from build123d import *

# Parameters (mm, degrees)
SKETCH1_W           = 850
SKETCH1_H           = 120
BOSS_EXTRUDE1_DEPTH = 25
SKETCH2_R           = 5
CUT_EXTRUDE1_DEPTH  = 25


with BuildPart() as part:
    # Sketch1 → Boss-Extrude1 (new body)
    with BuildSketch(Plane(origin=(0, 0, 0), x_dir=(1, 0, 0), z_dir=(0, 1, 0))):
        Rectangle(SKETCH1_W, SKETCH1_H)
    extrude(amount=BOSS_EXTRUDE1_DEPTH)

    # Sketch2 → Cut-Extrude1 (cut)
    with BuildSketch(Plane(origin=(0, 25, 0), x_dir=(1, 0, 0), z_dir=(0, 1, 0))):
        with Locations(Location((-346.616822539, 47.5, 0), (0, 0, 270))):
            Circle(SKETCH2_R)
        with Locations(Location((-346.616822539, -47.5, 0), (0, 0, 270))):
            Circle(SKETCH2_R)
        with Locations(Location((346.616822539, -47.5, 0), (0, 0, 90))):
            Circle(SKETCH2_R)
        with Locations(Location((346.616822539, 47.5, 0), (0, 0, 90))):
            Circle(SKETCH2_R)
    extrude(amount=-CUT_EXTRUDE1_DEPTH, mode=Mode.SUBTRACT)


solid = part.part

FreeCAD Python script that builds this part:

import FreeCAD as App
import Part
import Sketcher
from FreeCAD import Vector
Q = App.Units.Quantity


def add_polygon(sketch, points):
    """Adds a closed chain of lines whose ends are joined by coincident constraints."""
    first, n = sketch.GeometryCount, len(points)
    for a, b in zip(points, points[1:] + points[:1]):
        sketch.addGeometry(Part.LineSegment(App.Vector(*a, 0), App.Vector(*b, 0)), False)
    for i in range(n):
        sketch.addConstraint(Sketcher.Constraint("Coincident", first + i, 2, first + (i + 1) % n, 1))

doc = App.newDocument("Part")
body = doc.addObject("PartDesign::Body", "Body")

# Sketch on XZ plane
sketch1 = doc.addObject("Sketcher::SketchObject", "Sketch")
body.addObject(sketch1)
sketch1.AttachmentSupport = (doc.XZ_Plane, [""])
sketch1.MapMode = "FlatFace"
add_polygon(sketch1, [(-425, -60), (-425, 60), (425, 60), (425, -60)])  # lines 0-3
sketch1.addConstraint(Sketcher.Constraint("Vertical", 0))
sketch1.addConstraint(Sketcher.Constraint("Horizontal", 1))
sketch1.addConstraint(Sketcher.Constraint("Vertical", 2))
sketch1.addConstraint(Sketcher.Constraint("Horizontal", 3))
sketch1.addConstraint(Sketcher.Constraint("Symmetric", 0, 2, 2, 2, -1, 1))
sketch1.addConstraint(Sketcher.Constraint("DistanceX", 1, 1, 1, 2, Q("850 mm")))
sketch1.addConstraint(Sketcher.Constraint("DistanceY", 0, 1, 0, 2, Q("120 mm")))
pad1 = doc.addObject("PartDesign::Pad", "Pad")
body.addObject(pad1)
pad1.Profile = sketch1
pad1.Length = 25
pad1.Reversed = True

# Sketch on XZ plane
sketch2 = doc.addObject("Sketcher::SketchObject", "Sketch001")
body.addObject(sketch2)
sketch2.AttachmentSupport = (doc.XZ_Plane, [""])
sketch2.MapMode = "FlatFace"
sketch2.AttachmentOffset = App.Placement(Vector(0, 0, -25), App.Rotation())
sketch2.addGeometry(Part.Circle(Vector(-347, -48, 0), Vector(0, 0, 1), 5), False)
sketch2.addGeometry(Part.Circle(Vector(-347, 48, 0), Vector(0, 0, 1), 5), False)
sketch2.addGeometry(Part.Circle(Vector(347, 48, 0), Vector(0, 0, 1), 5), False)
sketch2.addGeometry(Part.Circle(Vector(347, -48, 0), Vector(0, 0, 1), 5), False)
sketch2.addConstraint(Sketcher.Constraint("Equal", 0, 1))
sketch2.addConstraint(Sketcher.Constraint("Equal", 1, 2))
sketch2.addConstraint(Sketcher.Constraint("Equal", 2, 3))
sketch2.addConstraint(Sketcher.Constraint("Symmetric", 0, 3, 2, 3, -1, 1))
sketch2.addConstraint(Sketcher.Constraint("Symmetric", 1, 3, 3, 3, -1, 1))
sketch2.addConstraint(Sketcher.Constraint("Symmetric", 1, 3, 2, 3, -2))
sketch2.addConstraint(Sketcher.Constraint("Diameter", 0, Q("10 mm")))
sketch2.addConstraint(Sketcher.Constraint("DistanceY", 0, 3, 1, 3, Q("95 mm")))
sketch2.addConstraint(Sketcher.Constraint("DistanceX", 0, 3, -1, 1, Q("346.616823 mm")))
pocket1 = doc.addObject("PartDesign::Pocket", "Pocket")
body.addObject(pocket1)
pocket1.Profile = sketch2
pocket1.Length = 25
pocket1.Reversed = True

doc.recompute()
